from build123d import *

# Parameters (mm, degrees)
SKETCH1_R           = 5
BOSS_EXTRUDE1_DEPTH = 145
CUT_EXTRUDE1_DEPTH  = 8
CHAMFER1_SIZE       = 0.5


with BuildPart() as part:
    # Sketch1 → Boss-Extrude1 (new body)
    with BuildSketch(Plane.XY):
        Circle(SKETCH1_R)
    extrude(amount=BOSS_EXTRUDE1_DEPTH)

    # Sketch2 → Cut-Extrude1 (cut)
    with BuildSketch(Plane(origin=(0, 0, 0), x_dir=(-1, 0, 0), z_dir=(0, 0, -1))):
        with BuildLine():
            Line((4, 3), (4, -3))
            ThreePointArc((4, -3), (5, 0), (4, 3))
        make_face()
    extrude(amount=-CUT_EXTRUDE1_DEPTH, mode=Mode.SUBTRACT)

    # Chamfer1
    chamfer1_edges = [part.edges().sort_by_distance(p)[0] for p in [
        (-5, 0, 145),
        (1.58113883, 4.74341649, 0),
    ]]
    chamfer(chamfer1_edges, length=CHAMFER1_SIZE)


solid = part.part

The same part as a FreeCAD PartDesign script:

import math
import FreeCAD as App
import Part
import Sketcher

V = App.Vector


def edges_at(feature, points):
    """Names of the edges that pass closest to the given points."""
    edges = feature.Shape.Edges
    near = lambda p: min(range(len(edges)), key=lambda i: edges[i].distToShape(Part.Vertex(*p))[0])
    return sorted({f"Edge{near(p) + 1}" for p in points})

doc = App.newDocument("Part")
body = doc.addObject("PartDesign::Body", "Body")

# Sketch on XY plane
sketch1 = doc.addObject("Sketcher::SketchObject", "Sketch")
body.addObject(sketch1)
sketch1.AttachmentSupport = (doc.XY_Plane, [""])
sketch1.MapMode = "FlatFace"
sketch1.addGeometry(Part.Circle(V(0, 0, 0), V(0, 0, 1), 5), False)
sketch1.addConstraint([
    Sketcher.Constraint("Coincident", 0, 3, -1, 1),
    Sketcher.Constraint("Diameter", 0, 10.0),
])
pad1 = doc.addObject("PartDesign::Pad", "Pad")
body.addObject(pad1)
pad1.Profile = sketch1
pad1.Length = 145

# Sketch on XY plane
sketch2 = doc.addObject("Sketcher::SketchObject", "Sketch001")
body.addObject(sketch2)
sketch2.AttachmentSupport = (doc.XY_Plane, [""])
sketch2.MapMode = "FlatFace"
sketch2.addGeometry([
    Part.LineSegment(V(-4, 3, 0), V(-4, -3, 0)),
    Part.ArcOfCircle(Part.Circle(V(0, 0, 0), V(0, 0, 1), 5), math.radians(143), math.radians(217)),
], False)
sketch2.addConstraint([
    Sketcher.Constraint("Coincident", 0, 1, 1, 1),
    Sketcher.Constraint("Coincident", 1, 2, 0, 2),
    Sketcher.Constraint("Vertical", 0),
    Sketcher.Constraint("Coincident", 1, 3, -1, 1),
    Sketcher.Constraint("Radius", 1, 5.0),
    Sketcher.Constraint("DistanceY", 0, 2, 0, 1, 6.0),
])
pocket1 = doc.addObject("PartDesign::Pocket", "Pocket")
body.addObject(pocket1)
pocket1.Profile = sketch2
pocket1.Length = 8
pocket1.Reversed = True
doc.recompute()

chamfer = doc.addObject("PartDesign::Chamfer", "Chamfer")
body.addObject(chamfer)
chamfer.Base = (pocket1, edges_at(pocket1, [(-5, 0, 145), (1.581, 4.743, 0)]))
chamfer.Size = 0.5

doc.recompute()
